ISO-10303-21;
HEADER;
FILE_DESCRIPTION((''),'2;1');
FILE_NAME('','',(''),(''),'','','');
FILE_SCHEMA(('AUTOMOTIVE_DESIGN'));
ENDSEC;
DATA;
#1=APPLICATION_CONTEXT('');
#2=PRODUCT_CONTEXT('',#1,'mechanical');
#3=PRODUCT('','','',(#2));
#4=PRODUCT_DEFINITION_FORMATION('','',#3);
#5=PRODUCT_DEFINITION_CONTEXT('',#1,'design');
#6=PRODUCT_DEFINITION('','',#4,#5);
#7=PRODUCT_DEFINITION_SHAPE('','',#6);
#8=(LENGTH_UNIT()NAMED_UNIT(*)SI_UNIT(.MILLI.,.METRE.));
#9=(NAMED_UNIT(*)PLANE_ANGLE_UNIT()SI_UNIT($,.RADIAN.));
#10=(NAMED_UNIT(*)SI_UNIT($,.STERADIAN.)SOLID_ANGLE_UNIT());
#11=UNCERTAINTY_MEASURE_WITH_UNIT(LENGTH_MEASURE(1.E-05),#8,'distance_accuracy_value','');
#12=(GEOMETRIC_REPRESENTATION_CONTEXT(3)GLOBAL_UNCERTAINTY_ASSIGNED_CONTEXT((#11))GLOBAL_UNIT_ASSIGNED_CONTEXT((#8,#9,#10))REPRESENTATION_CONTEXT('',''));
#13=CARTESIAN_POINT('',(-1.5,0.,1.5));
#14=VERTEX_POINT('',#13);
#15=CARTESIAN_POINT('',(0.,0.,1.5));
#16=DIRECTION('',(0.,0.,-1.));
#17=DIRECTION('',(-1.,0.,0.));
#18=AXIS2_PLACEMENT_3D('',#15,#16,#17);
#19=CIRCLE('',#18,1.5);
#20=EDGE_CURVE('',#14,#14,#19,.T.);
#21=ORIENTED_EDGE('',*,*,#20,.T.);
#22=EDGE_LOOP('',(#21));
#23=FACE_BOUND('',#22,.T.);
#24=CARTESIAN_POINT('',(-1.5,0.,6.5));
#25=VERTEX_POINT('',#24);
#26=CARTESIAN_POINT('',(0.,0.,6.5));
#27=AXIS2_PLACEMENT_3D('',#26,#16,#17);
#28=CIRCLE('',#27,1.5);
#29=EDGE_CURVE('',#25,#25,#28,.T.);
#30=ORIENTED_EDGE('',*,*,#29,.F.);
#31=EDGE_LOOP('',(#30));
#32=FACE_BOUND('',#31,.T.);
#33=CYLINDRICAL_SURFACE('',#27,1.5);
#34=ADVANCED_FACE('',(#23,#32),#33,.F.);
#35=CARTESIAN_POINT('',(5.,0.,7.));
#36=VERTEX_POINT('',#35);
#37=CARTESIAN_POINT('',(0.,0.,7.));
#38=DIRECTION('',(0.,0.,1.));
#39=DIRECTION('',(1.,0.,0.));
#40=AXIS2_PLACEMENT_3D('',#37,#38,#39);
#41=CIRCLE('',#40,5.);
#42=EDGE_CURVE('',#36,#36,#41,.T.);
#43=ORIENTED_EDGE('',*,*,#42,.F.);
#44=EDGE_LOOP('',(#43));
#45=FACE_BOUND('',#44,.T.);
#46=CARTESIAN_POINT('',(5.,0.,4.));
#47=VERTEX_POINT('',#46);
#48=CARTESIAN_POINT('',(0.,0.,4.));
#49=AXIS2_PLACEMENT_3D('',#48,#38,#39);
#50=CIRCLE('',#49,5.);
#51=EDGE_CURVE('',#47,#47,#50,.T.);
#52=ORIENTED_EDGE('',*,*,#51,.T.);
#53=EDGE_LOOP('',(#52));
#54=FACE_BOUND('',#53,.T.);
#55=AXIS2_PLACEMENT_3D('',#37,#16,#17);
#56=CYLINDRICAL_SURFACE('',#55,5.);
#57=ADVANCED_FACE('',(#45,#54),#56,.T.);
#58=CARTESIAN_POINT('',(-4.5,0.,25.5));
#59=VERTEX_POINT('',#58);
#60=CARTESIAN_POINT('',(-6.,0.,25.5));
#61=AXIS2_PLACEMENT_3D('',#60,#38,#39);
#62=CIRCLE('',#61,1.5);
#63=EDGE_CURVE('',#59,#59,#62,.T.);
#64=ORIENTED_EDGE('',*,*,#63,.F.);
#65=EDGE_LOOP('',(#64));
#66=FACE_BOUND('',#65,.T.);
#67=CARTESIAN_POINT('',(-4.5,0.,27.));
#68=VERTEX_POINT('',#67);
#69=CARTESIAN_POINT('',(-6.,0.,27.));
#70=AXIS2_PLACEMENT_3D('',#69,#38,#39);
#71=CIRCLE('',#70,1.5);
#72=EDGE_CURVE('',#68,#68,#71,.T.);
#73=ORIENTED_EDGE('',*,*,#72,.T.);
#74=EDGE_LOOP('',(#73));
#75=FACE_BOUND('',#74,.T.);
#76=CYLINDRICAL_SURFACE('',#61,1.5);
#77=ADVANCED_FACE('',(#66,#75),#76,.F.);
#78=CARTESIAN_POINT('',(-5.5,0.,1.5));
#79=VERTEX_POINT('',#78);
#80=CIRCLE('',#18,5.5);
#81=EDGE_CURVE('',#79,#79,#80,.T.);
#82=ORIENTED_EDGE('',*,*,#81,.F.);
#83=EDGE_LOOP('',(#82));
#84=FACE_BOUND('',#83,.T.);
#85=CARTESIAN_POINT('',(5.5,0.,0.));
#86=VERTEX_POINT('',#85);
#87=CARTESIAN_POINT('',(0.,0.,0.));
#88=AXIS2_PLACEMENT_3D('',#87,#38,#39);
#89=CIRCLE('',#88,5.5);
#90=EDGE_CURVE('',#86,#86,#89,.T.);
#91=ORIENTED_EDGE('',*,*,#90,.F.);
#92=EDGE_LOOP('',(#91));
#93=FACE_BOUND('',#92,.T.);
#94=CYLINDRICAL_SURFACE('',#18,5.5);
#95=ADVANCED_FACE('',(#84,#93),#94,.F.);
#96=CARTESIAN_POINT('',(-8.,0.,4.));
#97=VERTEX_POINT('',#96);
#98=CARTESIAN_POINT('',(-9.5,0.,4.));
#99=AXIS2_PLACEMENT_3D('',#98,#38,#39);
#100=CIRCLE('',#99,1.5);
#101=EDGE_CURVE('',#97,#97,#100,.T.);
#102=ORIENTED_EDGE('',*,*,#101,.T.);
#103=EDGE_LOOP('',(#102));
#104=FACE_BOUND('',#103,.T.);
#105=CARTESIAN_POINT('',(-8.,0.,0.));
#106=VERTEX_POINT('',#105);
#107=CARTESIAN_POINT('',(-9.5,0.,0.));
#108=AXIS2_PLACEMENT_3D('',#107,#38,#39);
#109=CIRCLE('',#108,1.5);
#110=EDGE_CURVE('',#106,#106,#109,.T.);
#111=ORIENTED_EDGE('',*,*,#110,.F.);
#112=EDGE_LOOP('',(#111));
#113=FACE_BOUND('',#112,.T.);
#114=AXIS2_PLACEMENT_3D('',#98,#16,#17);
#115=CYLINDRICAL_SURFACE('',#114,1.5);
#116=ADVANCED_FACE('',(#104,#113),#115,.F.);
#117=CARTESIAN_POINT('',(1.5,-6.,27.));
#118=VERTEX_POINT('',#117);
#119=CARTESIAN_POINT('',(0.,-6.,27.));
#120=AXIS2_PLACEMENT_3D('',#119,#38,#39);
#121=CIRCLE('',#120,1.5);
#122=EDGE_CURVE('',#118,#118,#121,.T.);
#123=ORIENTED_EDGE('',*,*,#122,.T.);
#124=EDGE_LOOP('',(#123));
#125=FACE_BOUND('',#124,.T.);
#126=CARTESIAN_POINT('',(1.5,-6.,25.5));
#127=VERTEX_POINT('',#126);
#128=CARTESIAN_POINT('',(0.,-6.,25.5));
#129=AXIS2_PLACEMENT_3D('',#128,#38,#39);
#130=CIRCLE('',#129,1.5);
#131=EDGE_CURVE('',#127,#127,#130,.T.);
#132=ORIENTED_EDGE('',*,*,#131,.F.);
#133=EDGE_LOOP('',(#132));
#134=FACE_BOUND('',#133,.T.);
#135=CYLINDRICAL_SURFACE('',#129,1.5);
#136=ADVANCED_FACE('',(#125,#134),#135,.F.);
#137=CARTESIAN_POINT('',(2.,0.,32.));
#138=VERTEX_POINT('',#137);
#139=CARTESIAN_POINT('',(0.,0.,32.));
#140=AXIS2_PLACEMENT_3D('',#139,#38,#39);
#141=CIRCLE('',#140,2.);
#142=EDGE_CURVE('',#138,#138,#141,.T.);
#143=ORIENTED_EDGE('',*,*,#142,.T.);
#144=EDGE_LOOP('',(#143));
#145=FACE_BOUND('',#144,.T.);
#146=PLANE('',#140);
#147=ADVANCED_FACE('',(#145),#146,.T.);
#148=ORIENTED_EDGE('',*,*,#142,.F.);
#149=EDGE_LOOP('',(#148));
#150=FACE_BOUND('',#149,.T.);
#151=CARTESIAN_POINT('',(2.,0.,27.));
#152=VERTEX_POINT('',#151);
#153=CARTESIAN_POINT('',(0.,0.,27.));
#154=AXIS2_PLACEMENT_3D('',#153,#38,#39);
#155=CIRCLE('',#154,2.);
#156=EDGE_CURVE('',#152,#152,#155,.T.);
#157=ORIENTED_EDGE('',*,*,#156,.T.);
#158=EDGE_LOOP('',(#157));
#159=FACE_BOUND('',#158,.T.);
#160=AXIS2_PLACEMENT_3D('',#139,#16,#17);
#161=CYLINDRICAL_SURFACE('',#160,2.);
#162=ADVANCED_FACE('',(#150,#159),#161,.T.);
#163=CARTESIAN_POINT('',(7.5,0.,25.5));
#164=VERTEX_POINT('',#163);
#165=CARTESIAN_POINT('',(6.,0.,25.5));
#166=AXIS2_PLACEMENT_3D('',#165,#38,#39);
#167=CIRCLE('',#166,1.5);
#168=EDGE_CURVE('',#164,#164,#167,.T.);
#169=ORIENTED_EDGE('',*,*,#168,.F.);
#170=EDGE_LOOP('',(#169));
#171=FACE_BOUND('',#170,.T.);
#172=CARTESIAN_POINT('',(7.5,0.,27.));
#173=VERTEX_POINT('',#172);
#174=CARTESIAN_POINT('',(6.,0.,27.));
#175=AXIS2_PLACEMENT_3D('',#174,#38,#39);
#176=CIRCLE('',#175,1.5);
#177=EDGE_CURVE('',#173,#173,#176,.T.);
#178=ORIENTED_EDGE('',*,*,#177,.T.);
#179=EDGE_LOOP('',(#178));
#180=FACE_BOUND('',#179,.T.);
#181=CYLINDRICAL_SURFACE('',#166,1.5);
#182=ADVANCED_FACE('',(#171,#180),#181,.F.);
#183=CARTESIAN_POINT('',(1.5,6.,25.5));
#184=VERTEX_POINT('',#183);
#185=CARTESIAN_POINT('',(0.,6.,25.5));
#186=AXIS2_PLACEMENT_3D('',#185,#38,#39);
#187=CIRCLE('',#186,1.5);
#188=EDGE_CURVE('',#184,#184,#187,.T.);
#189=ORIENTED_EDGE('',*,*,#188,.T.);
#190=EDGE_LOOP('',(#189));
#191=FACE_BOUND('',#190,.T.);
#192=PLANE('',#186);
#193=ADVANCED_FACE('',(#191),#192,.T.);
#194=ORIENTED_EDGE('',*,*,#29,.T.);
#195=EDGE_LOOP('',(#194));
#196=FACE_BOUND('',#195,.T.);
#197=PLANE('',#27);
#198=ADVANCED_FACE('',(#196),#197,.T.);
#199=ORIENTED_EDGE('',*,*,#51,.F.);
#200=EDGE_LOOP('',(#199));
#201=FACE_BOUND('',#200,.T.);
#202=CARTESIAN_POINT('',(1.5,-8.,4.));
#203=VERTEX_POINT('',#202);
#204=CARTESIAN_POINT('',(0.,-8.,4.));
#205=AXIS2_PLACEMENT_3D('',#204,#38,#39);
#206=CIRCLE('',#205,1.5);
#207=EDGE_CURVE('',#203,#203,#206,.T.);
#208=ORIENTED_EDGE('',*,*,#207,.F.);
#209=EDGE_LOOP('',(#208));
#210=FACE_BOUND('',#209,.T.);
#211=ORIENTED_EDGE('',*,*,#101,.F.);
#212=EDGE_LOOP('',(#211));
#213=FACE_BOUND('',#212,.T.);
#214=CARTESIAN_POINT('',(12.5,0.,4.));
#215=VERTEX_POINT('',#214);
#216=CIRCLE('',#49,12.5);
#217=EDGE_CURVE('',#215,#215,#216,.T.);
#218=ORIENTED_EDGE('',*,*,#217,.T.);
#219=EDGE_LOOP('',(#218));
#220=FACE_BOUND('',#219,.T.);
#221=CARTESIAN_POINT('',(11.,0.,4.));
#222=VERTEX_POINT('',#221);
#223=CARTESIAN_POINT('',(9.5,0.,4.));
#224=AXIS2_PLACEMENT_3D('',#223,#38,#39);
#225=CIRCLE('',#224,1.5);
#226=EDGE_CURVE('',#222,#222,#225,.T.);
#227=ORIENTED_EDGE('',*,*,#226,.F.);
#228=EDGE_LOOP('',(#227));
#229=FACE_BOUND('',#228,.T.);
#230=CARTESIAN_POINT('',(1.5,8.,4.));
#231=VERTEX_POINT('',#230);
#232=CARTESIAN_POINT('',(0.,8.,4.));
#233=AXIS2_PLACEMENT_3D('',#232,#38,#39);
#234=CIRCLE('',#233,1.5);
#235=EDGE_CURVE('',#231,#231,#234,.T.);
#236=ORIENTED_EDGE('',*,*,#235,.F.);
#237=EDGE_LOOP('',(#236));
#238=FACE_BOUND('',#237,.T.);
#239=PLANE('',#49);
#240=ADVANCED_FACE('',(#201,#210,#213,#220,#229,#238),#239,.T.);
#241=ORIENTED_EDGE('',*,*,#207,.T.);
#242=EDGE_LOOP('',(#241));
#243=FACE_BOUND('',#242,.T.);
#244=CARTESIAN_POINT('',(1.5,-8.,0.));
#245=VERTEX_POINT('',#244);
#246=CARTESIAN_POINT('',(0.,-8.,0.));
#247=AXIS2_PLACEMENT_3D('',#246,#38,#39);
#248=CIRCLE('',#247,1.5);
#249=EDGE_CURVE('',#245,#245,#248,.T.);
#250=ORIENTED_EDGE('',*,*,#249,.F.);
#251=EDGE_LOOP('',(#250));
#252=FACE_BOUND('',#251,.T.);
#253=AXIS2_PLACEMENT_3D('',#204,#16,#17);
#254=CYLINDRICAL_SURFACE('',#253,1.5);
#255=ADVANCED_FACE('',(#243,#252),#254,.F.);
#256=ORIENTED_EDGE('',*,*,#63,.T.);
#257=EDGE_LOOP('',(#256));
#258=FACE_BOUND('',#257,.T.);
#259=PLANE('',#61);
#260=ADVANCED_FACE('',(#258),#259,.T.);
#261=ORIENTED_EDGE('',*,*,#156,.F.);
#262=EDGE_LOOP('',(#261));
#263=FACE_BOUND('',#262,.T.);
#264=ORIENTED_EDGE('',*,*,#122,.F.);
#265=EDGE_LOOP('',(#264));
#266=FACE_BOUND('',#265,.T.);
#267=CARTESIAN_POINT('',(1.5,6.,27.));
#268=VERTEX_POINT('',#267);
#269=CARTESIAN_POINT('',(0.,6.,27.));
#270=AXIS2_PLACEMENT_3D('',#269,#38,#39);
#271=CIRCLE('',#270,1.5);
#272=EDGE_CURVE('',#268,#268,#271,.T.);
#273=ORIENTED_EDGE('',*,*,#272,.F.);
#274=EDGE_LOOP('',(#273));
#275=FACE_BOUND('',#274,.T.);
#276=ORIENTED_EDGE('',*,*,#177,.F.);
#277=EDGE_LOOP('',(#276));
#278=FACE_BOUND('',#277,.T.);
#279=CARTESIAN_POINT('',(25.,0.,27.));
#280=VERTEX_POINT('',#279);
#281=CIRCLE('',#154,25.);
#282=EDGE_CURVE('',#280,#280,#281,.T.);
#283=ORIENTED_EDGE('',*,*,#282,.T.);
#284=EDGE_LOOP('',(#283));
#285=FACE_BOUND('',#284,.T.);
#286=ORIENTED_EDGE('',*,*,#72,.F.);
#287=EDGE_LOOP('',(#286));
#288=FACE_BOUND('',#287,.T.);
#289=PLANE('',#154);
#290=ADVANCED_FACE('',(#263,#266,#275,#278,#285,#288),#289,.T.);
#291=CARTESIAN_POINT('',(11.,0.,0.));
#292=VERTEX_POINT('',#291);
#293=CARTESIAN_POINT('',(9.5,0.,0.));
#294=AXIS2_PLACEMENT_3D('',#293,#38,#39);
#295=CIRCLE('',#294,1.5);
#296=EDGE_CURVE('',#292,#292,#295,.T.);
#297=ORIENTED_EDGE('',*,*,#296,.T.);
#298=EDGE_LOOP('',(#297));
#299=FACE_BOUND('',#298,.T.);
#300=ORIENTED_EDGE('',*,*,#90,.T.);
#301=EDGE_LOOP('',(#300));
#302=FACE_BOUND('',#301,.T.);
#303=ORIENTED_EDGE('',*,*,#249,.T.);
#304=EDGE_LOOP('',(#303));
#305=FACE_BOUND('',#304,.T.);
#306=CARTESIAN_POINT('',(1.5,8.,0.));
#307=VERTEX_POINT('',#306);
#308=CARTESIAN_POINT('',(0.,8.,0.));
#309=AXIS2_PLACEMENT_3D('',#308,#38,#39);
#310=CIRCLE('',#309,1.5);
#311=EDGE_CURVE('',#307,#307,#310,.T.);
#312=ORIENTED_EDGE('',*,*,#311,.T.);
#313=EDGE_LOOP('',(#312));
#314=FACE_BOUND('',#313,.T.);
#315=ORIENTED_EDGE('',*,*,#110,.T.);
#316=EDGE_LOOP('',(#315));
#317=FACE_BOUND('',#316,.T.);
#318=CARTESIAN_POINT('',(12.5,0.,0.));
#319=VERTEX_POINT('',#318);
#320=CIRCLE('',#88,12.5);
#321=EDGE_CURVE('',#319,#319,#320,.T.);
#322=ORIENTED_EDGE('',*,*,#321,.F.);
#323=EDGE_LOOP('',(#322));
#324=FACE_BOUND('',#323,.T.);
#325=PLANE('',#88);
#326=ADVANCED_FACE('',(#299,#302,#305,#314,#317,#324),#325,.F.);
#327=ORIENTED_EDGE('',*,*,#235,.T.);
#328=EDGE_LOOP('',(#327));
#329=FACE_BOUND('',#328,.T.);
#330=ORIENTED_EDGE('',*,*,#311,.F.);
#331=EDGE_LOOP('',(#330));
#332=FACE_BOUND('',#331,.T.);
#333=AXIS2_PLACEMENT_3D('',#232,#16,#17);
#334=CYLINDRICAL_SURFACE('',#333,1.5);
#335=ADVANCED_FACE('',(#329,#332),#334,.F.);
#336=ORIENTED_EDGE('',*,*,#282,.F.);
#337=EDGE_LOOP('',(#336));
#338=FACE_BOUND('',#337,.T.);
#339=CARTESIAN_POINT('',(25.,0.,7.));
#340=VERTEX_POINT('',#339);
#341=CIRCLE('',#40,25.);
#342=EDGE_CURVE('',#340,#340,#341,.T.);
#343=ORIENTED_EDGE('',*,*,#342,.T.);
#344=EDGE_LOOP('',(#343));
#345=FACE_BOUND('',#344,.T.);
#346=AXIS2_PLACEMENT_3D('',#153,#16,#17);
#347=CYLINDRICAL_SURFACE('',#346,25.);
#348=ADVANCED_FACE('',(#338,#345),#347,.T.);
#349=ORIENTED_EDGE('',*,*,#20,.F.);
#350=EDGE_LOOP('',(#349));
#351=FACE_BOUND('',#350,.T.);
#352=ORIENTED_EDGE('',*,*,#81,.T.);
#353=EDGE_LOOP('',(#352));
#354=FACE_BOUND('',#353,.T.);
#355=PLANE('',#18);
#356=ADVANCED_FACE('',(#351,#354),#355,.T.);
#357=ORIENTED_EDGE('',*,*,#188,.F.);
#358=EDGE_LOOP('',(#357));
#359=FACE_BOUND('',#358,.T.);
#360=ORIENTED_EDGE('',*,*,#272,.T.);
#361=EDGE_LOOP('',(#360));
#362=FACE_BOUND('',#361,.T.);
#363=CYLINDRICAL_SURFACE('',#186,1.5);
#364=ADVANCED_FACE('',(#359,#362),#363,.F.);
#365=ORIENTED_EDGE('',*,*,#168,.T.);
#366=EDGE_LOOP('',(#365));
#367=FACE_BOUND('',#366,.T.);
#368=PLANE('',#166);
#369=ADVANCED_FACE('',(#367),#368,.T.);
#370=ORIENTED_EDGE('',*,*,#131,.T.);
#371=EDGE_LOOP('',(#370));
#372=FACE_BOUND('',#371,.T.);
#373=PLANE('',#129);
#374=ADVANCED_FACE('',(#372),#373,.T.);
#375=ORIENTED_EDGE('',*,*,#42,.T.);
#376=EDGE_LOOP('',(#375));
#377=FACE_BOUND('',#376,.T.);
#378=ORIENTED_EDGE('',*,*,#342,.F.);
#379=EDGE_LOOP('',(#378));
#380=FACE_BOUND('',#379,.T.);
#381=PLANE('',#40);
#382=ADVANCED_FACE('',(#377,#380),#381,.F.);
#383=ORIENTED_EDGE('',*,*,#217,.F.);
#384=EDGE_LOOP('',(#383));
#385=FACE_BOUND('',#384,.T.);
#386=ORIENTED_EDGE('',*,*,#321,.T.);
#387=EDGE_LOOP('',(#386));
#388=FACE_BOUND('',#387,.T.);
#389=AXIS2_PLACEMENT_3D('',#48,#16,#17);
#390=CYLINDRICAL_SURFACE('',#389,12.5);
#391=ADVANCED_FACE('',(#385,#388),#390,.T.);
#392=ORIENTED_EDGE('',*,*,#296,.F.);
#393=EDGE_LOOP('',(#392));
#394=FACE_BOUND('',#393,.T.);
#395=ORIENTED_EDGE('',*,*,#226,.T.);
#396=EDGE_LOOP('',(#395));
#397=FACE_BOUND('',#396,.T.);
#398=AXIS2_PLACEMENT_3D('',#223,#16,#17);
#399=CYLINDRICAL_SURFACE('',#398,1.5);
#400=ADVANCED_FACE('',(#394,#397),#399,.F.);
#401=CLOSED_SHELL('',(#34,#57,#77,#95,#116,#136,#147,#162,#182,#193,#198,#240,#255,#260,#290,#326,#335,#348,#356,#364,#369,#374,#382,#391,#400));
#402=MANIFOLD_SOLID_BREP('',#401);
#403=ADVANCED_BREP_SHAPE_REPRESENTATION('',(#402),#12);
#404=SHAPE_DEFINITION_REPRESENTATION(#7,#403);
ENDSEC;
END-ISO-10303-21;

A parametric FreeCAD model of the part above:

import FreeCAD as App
import Part
import Sketcher

V = App.Vector

doc = App.newDocument("Part")
body = doc.addObject("PartDesign::Body", "Body")

sketch1 = body.newObject("Sketcher::SketchObject", "Sketch")
sketch1.AttachmentSupport = (doc.getObject("XY_Plane"), [""])
sketch1.MapMode = "FlatFace"
sketch1.addGeometry(Part.Circle(V(0, 0, 0), V(0, 0, 1), 12.5), False)
sketch1.addGeometry(Part.Circle(V(-9.5, 0, 0), V(0, 0, 1), 1.5), False)
sketch1.addGeometry(Part.Circle(V(0, -8, 0), V(0, 0, 1), 1.5), False)
sketch1.addGeometry(Part.Circle(V(0, 8, 0), V(0, 0, 1), 1.5), False)
sketch1.addGeometry(Part.Circle(V(9.5, 0, 0), V(0, 0, 1), 1.5), False)
sketch1.addConstraint(Sketcher.Constraint("Coincident", 0, 3, -1, 1))
sketch1.addConstraint(Sketcher.Constraint("Equal", 1, 2))
sketch1.addConstraint(Sketcher.Constraint("Equal", 2, 3))
sketch1.addConstraint(Sketcher.Constraint("Equal", 3, 4))
sketch1.addConstraint(Sketcher.Constraint("Symmetric", 2, 3, 3, 3, -1, 1))
sketch1.addConstraint(Sketcher.Constraint("Symmetric", 1, 3, 4, 3, -1, 1))
sketch1.addConstraint(Sketcher.Constraint("PointOnObject", 1, 3, -1))
sketch1.addConstraint(Sketcher.Constraint("PointOnObject", 2, 3, -2))
sketch1.addConstraint(Sketcher.Constraint("Diameter", 0, 25.0))
sketch1.addConstraint(Sketcher.Constraint("Diameter", 1, 3.0))
sketch1.addConstraint(Sketcher.Constraint("DistanceY", 2, 3, -1, 1, 8.0))
sketch1.addConstraint(Sketcher.Constraint("DistanceX", 1, 3, 4, 3, 19.0))
pad1 = body.newObject("PartDesign::Pad", "Pad")
pad1.Profile = sketch1
pad1.Length = 4

sketch2 = body.newObject("Sketcher::SketchObject", "Sketch001")
sketch2.AttachmentSupport = (doc.getObject("XY_Plane"), [""])
sketch2.MapMode = "FlatFace"
sketch2.AttachmentOffset = App.Placement(V(0, 0, 4), App.Rotation())
sketch2.addGeometry(Part.Circle(V(0, 0, 0), V(0, 0, 1), 5), False)
sketch2.addConstraint(Sketcher.Constraint("Coincident", 0, 3, -1, 1))
sketch2.addConstraint(Sketcher.Constraint("Diameter", 0, 10.0))
pad2 = body.newObject("PartDesign::Pad", "Pad001")
pad2.Profile = sketch2
pad2.Length = 3

sketch3 = body.newObject("Sketcher::SketchObject", "Sketch002")
sketch3.AttachmentSupport = (doc.getObject("XY_Plane"), [""])
sketch3.MapMode = "FlatFace"
sketch3.AttachmentOffset = App.Placement(V(0, 0, 7), App.Rotation())
sketch3.addGeometry(Part.Circle(V(0, 0, 0), V(0, 0, 1), 25), False)
sketch3.addConstraint(Sketcher.Constraint("Coincident", 0, 3, -1, 1))
sketch3.addConstraint(Sketcher.Constraint("Diameter", 0, 50.0))
pad3 = body.newObject("PartDesign::Pad", "Pad002")
pad3.Profile = sketch3
pad3.Length = 20

sketch4 = body.newObject("Sketcher::SketchObject", "Sketch003")
sketch4.AttachmentSupport = (doc.getObject("XY_Plane"), [""])
sketch4.MapMode = "FlatFace"
sketch4.AttachmentOffset = App.Placement(V(0, 0, 27), App.Rotation())
sketch4.addGeometry(Part.Circle(V(0, 6, 0), V(0, 0, 1), 1.5), False)
sketch4.addGeometry(Part.Circle(V(6, 0, 0), V(0, 0, 1), 1.5), False)
sketch4.addGeometry(Part.Circle(V(0, -6, 0), V(0, 0, 1), 1.5), False)
sketch4.addGeometry(Part.Circle(V(-6, 0, 0), V(0, 0, 1), 1.5), False)
sketch4.addConstraint(Sketcher.Constraint("Equal", 0, 1))
sketch4.addConstraint(Sketcher.Constraint("Equal", 1, 2))
sketch4.addConstraint(Sketcher.Constraint("Equal", 2, 3))
sketch4.addConstraint(Sketcher.Constraint("Symmetric", 0, 3, 2, 3, -1, 1))
sketch4.addConstraint(Sketcher.Constraint("Symmetric", 1, 3, 3, 3, -1, 1))
sketch4.addConstraint(Sketcher.Constraint("PointOnObject", 0, 3, -2))
sketch4.addConstraint(Sketcher.Constraint("PointOnObject", 1, 3, -1))
sketch4.addConstraint(Sketcher.Constraint("Diameter", 0, 3.0))
sketch4.addConstraint(Sketcher.Constraint("DistanceY", -1, 1, 0, 3, 6.0))
sketch4.addConstraint(Sketcher.Constraint("DistanceX", -1, 1, 1, 3, 6.0))
pocket1 = body.newObject("PartDesign::Pocket", "Pocket")
pocket1.Profile = sketch4
pocket1.Length = 3
pocket1.Midplane = True

sketch5 = body.newObject("Sketcher::SketchObject", "Sketch004")
sketch5.AttachmentSupport = (doc.getObject("XY_Plane"), [""])
sketch5.MapMode = "FlatFace"
sketch5.AttachmentOffset = App.Placement(V(0, 0, 27), App.Rotation())
sketch5.addGeometry(Part.Circle(V(0, 0, 0), V(0, 0, 1), 2), False)
sketch5.addConstraint(Sketcher.Constraint("Coincident", 0, 3, -1, 1))
sketch5.addConstraint(Sketcher.Constraint("Diameter", 0, 4.0))
pad4 = body.newObject("PartDesign::Pad", "Pad003")
pad4.Profile = sketch5
pad4.Length = 5

sketch6 = body.newObject("Sketcher::SketchObject", "Sketch005")
sketch6.AttachmentSupport = (doc.getObject("XY_Plane"), [""])
sketch6.MapMode = "FlatFace"
sketch6.addGeometry(Part.Circle(V(0, 0, 0), V(0, 0, 1), 6), False)
sketch6.addConstraint(Sketcher.Constraint("Coincident", 0, 3, -1, 1))
sketch6.addConstraint(Sketcher.Constraint("Diameter", 0, 11.0))
pocket2 = body.newObject("PartDesign::Pocket", "Pocket001")
pocket2.Profile = sketch6
pocket2.Length = 3
pocket2.Midplane = True

sketch7 = body.newObject("Sketcher::SketchObject", "Sketch006")
sketch7.AttachmentSupport = (doc.getObject("XY_Plane"), [""])
sketch7.MapMode = "FlatFace"
sketch7.AttachmentOffset = App.Placement(V(0, 0, 1.5), App.Rotation())
sketch7.addGeometry(Part.Circle(V(0, 0, 0), V(0, 0, 1), 1.5), False)
sketch7.addConstraint(Sketcher.Constraint("Coincident", 0, 3, -1, 1))
sketch7.addConstraint(Sketcher.Constraint("Diameter", 0, 3.0))
pocket3 = body.newObject("PartDesign::Pocket", "Pocket002")
pocket3.Profile = sketch7
pocket3.Length = 5
pocket3.Reversed = True

doc.recompute()
